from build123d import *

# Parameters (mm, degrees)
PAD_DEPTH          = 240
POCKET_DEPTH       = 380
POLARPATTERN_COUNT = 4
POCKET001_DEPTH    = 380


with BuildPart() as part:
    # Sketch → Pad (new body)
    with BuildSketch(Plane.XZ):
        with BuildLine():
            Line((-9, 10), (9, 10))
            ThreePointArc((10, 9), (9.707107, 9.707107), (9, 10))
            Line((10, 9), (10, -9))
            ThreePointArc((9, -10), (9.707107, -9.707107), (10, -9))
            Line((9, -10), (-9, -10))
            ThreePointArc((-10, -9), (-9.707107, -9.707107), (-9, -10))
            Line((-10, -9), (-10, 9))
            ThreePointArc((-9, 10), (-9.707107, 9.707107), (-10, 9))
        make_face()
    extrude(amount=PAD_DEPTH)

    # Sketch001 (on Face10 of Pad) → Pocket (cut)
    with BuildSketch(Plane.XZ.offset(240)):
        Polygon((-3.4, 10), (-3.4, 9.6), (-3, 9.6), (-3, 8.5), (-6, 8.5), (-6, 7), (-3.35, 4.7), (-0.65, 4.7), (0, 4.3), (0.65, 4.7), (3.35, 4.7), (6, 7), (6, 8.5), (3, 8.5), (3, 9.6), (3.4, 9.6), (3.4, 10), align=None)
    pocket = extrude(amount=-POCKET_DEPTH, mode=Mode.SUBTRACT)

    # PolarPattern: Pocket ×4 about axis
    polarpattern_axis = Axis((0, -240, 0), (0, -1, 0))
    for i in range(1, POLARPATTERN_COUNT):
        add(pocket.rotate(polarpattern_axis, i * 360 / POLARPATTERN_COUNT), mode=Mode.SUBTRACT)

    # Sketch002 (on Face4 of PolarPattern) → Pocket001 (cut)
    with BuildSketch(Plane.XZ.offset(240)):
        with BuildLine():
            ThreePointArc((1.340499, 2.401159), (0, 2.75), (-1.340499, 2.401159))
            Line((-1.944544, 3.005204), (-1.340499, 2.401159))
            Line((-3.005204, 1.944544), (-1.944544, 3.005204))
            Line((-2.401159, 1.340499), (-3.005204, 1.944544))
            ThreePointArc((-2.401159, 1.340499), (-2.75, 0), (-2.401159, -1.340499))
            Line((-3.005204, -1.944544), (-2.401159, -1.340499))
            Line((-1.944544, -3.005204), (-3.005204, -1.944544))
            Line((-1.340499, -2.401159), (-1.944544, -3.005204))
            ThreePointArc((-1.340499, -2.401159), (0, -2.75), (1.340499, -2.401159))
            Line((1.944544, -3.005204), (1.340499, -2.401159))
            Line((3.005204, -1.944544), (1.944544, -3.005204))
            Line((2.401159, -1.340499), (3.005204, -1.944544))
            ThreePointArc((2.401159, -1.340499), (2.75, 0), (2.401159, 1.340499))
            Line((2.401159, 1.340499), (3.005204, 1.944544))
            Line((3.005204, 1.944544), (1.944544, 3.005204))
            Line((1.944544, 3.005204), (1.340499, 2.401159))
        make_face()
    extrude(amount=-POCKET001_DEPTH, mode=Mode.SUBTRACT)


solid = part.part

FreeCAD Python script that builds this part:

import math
import FreeCAD as App
import Part
import Sketcher

V = App.Vector

doc = App.newDocument("Part")
body = doc.addObject("PartDesign::Body", "Body")

# Sketch on XZ plane
sketch1 = body.newObject("Sketcher::SketchObject", "Sketch")
sketch1.AttachmentSupport = (doc.getObject("XZ_Plane"), [""])
sketch1.MapMode = "FlatFace"
sketch1.addGeometry(Part.LineSegment(V(9, 10, 0), V(-9, 10, 0)), False)
sketch1.addGeometry(Part.ArcOfCircle(Part.Circle(V(-9, 9, 0), V(0, 0, 1), 1), math.radians(90), math.radians(180)), False)
sketch1.addGeometry(Part.LineSegment(V(-10, 9, 0), V(-10, -9, 0)), False)
sketch1.addGeometry(Part.ArcOfCircle(Part.Circle(V(-9, -9, 0), V(0, 0, 1), 1), math.radians(180), math.radians(270)), False)
sketch1.addGeometry(Part.LineSegment(V(-9, -10, 0), V(9, -10, 0)), False)
sketch1.addGeometry(Part.ArcOfCircle(Part.Circle(V(9, -9, 0), V(0, 0, 1), 1), math.radians(-90), math.radians(0)), False)
sketch1.addGeometry(Part.LineSegment(V(10, -9, 0), V(10, 9, 0)), False)
sketch1.addGeometry(Part.ArcOfCircle(Part.Circle(V(9, 9, 0), V(0, 0, 1), 1), math.radians(0), math.radians(90)), False)
sketch1.addConstraint(Sketcher.Constraint("Tangent", 0, 2, 1, 1))
sketch1.addConstraint(Sketcher.Constraint("Tangent", 1, 2, 2, 1))
sketch1.addConstraint(Sketcher.Constraint("Tangent", 2, 2, 3, 1))
sketch1.addConstraint(Sketcher.Constraint("Tangent", 3, 2, 4, 1))
sketch1.addConstraint(Sketcher.Constraint("Tangent", 4, 2, 5, 1))
sketch1.addConstraint(Sketcher.Constraint("Tangent", 5, 2, 6, 1))
sketch1.addConstraint(Sketcher.Constraint("Tangent", 6, 2, 7, 1))
sketch1.addConstraint(Sketcher.Constraint("Tangent", 7, 2, 0, 1))
sketch1.addConstraint(Sketcher.Constraint("Horizontal", 0))
sketch1.addConstraint(Sketcher.Constraint("Vertical", 2))
sketch1.addConstraint(Sketcher.Constraint("Horizontal", 4))
sketch1.addConstraint(Sketcher.Constraint("Vertical", 6))
sketch1.addConstraint(Sketcher.Constraint("Equal", 1, 3))
sketch1.addConstraint(Sketcher.Constraint("Equal", 3, 5))
sketch1.addConstraint(Sketcher.Constraint("Equal", 5, 7))
sketch1.addConstraint(Sketcher.Constraint("Symmetric", 1, 3, 5, 3, -1, 1))
sketch1.addConstraint(Sketcher.Constraint("Equal", 4, 2))
sketch1.addConstraint(Sketcher.Constraint("Radius", 1, 0.999999))
sketch1.addConstraint(Sketcher.Constraint("DistanceX", 0, 2, 0, 1, 18.0))
pad1 = body.newObject("PartDesign::Pad", "Pad")
pad1.Profile = sketch1
pad1.Length = 240

# Sketch on XZ plane
sketch2 = body.newObject("Sketcher::SketchObject", "Sketch001")
sketch2.AttachmentSupport = (doc.getObject("XZ_Plane"), [""])
sketch2.MapMode = "FlatFace"
sketch2.AttachmentOffset = App.Placement(V(0, 0, 240), App.Rotation())
sketch2.addGeometry(Part.LineSegment(V(-3.4, 10, 0), V(-3.4, 9.6, 0)), False)
sketch2.addGeometry(Part.LineSegment(V(-3.4, 9.6, 0), V(-3, 9.6, 0)), False)
sketch2.addGeometry(Part.LineSegment(V(-3, 9.6, 0), V(-3, 8.5, 0)), False)
sketch2.addGeometry(Part.LineSegment(V(-3, 8.5, 0), V(-6, 8.5, 0)), False)
sketch2.addGeometry(Part.LineSegment(V(-6, 8.5, 0), V(-6, 7, 0)), False)
sketch2.addGeometry(Part.LineSegment(V(-6, 7, 0), V(-3.35, 4.7, 0)), False)
sketch2.addGeometry(Part.LineSegment(V(-3.35, 4.7, 0), V(-0.65, 4.7, 0)), False)
sketch2.addGeometry(Part.LineSegment(V(-0.65, 4.7, 0), V(0, 4.3, 0)), False)
sketch2.addGeometry(Part.LineSegment(V(0, 4.3, 0), V(0.65, 4.7, 0)), False)
sketch2.addGeometry(Part.LineSegment(V(0.65, 4.7, 0), V(3.35, 4.7, 0)), False)
sketch2.addGeometry(Part.LineSegment(V(3.35, 4.7, 0), V(6, 7, 0)), False)
sketch2.addGeometry(Part.LineSegment(V(6, 7, 0), V(6, 8.5, 0)), False)
sketch2.addGeometry(Part.LineSegment(V(6, 8.5, 0), V(3, 8.5, 0)), False)
sketch2.addGeometry(Part.LineSegment(V(3, 8.5, 0), V(3, 9.6, 0)), False)
sketch2.addGeometry(Part.LineSegment(V(3, 9.6, 0), V(3.4, 9.6, 0)), False)
sketch2.addGeometry(Part.LineSegment(V(3.4, 9.6, 0), V(3.4, 10, 0)), False)
sketch2.addGeometry(Part.LineSegment(V(3.4, 10, 0), V(-3.4, 10, 0)), False)
sketch2.addConstraint(Sketcher.Constraint("Coincident", 0, 2, 1, 1))
sketch2.addConstraint(Sketcher.Constraint("Coincident", 1, 2, 2, 1))
sketch2.addConstraint(Sketcher.Constraint("Coincident", 2, 2, 3, 1))
sketch2.addConstraint(Sketcher.Constraint("Coincident", 3, 2, 4, 1))
sketch2.addConstraint(Sketcher.Constraint("Coincident", 4, 2, 5, 1))
sketch2.addConstraint(Sketcher.Constraint("Coincident", 5, 2, 6, 1))
sketch2.addConstraint(Sketcher.Constraint("Coincident", 6, 2, 7, 1))
sketch2.addConstraint(Sketcher.Constraint("Coincident", 7, 2, 8, 1))
sketch2.addConstraint(Sketcher.Constraint("Coincident", 8, 2, 9, 1))
sketch2.addConstraint(Sketcher.Constraint("Coincident", 9, 2, 10, 1))
sketch2.addConstraint(Sketcher.Constraint("Coincident", 10, 2, 11, 1))
sketch2.addConstraint(Sketcher.Constraint("Coincident", 11, 2, 12, 1))
sketch2.addConstraint(Sketcher.Constraint("Coincident", 12, 2, 13, 1))
sketch2.addConstraint(Sketcher.Constraint("Coincident", 13, 2, 14, 1))
sketch2.addConstraint(Sketcher.Constraint("Coincident", 14, 2, 15, 1))
sketch2.addConstraint(Sketcher.Constraint("Coincident", 15, 2, 16, 1))
sketch2.addConstraint(Sketcher.Constraint("Coincident", 16, 2, 0, 1))
sketch2.addConstraint(Sketcher.Constraint("Vertical", 0))
sketch2.addConstraint(Sketcher.Constraint("Horizontal", 1))
sketch2.addConstraint(Sketcher.Constraint("Vertical", 2))
sketch2.addConstraint(Sketcher.Constraint("Horizontal", 3))
sketch2.addConstraint(Sketcher.Constraint("Vertical", 4))
sketch2.addConstraint(Sketcher.Constraint("Horizontal", 6))
sketch2.addConstraint(Sketcher.Constraint("Horizontal", 9))
sketch2.addConstraint(Sketcher.Constraint("Vertical", 11))
sketch2.addConstraint(Sketcher.Constraint("Horizontal", 12))
sketch2.addConstraint(Sketcher.Constraint("Vertical", 13))
sketch2.addConstraint(Sketcher.Constraint("Horizontal", 14))
sketch2.addConstraint(Sketcher.Constraint("Vertical", 15))
sketch2.addConstraint(Sketcher.Constraint("Horizontal", 16))
sketch2.addConstraint(Sketcher.Constraint("Symmetric", 6, 2, 8, 2, -2))
sketch2.addConstraint(Sketcher.Constraint("Symmetric", 4, 2, 10, 2, -2))
sketch2.addConstraint(Sketcher.Constraint("Symmetric", 2, 2, 12, 2, -2))
sketch2.addConstraint(Sketcher.Constraint("Symmetric", 0, 2, 14, 2, -2))
sketch2.addConstraint(Sketcher.Constraint("PointOnObject", 7, 2, -2))
sketch2.addConstraint(Sketcher.Constraint("Equal", 6, 9))
sketch2.addConstraint(Sketcher.Constraint("Equal", 14, 0))
sketch2.addConstraint(Sketcher.Constraint("DistanceX", 3, 2, 3, 1, 3.0))
sketch2.addConstraint(Sketcher.Constraint("DistanceX", 1, 1, 1, 2, 0.4))
sketch2.addConstraint(Sketcher.Constraint("DistanceX", 6, 1, 6, 2, 2.7))
sketch2.addConstraint(Sketcher.Constraint("DistanceX", 16, 2, 16, 1, 6.8))
sketch2.addConstraint(Sketcher.Constraint("DistanceY", 2, 2, 2, 1, 1.1))
sketch2.addConstraint(Sketcher.Constraint("DistanceY", 4, 2, 4, 1, 1.5))
sketch2.addConstraint(Sketcher.Constraint("DistanceY", -1, 1, 4, 2, 7.0))
sketch2.addConstraint(Sketcher.Constraint("DistanceX", 5, 2, 8, 2, 4.0))
sketch2.addConstraint(Sketcher.Constraint("DistanceY", -1, 1, 5, 2, 4.7))
sketch2.addConstraint(Sketcher.Constraint("DistanceY", -1, 1, 7, 2, 4.3))
pocket1 = body.newObject("PartDesign::Pocket", "Pocket")
pocket1.Profile = sketch2
pocket1.Length = 380
doc.recompute()

polarpattern = body.newObject("PartDesign::PolarPattern", "PolarPattern")
polarpattern.Originals = [pocket1]
polarpattern.Axis = (doc.getObject("Y_Axis"), [""])
polarpattern.Angle = 360
polarpattern.Occurrences = 4
body.Tip = polarpattern

# Sketch on XZ plane
sketch3 = body.newObject("Sketcher::SketchObject", "Sketch002")
sketch3.AttachmentSupport = (doc.getObject("XZ_Plane"), [""])
sketch3.MapMode = "FlatFace"
sketch3.AttachmentOffset = App.Placement(V(0, 0, 240), App.Rotation())
sketch3.addGeometry(Part.ArcOfCircle(Part.Circle(V(0, 0, 0), V(0, 0, 1), 2.8), math.radians(61), math.radians(119)), False)
sketch3.addGeometry(Part.LineSegment(V(-1.3, 2.4, 0), V(-1.9, 3, 0)), False)
sketch3.addGeometry(Part.LineSegment(V(-1.9, 3, 0), V(-3, 1.9, 0)), False)
sketch3.addGeometry(Part.LineSegment(V(-3, 1.9, 0), V(-2.4, 1.3, 0)), False)
sketch3.addGeometry(Part.ArcOfCircle(Part.Circle(V(0, 0, 0), V(0, 0, 1), 2.8), math.radians(151), math.radians(209)), False)
sketch3.addGeometry(Part.LineSegment(V(-2.4, -1.3, 0), V(-3, -1.9, 0)), False)
sketch3.addGeometry(Part.LineSegment(V(-3, -1.9, 0), V(-1.9, -3, 0)), False)
sketch3.addGeometry(Part.LineSegment(V(-1.9, -3, 0), V(-1.3, -2.4, 0)), False)
sketch3.addGeometry(Part.ArcOfCircle(Part.Circle(V(0, 0, 0), V(0, 0, 1), 2.8), math.radians(-119), math.radians(-61)), False)
sketch3.addGeometry(Part.LineSegment(V(1.3, -2.4, 0), V(1.9, -3, 0)), False)
sketch3.addGeometry(Part.LineSegment(V(1.9, -3, 0), V(3, -1.9, 0)), False)
sketch3.addGeometry(Part.LineSegment(V(3, -1.9, 0), V(2.4, -1.3, 0)), False)
sketch3.addGeometry(Part.ArcOfCircle(Part.Circle(V(0, 0, 0), V(0, 0, 1), 2.8), math.radians(-29), math.radians(29)), False)
sketch3.addGeometry(Part.LineSegment(V(2.4, 1.3, 0), V(3, 1.9, 0)), False)
sketch3.addGeometry(Part.LineSegment(V(3, 1.9, 0), V(1.9, 3, 0)), False)
sketch3.addGeometry(Part.LineSegment(V(1.9, 3, 0), V(1.3, 2.4, 0)), False)
sketch3.addConstraint(Sketcher.Constraint("Coincident", 0, 2, 1, 1))
sketch3.addConstraint(Sketcher.Constraint("Coincident", 1, 2, 2, 1))
sketch3.addConstraint(Sketcher.Constraint("Coincident", 2, 2, 3, 1))
sketch3.addConstraint(Sketcher.Constraint("Coincident", 3, 2, 4, 1))
sketch3.addConstraint(Sketcher.Constraint("Coincident", 4, 2, 5, 1))
sketch3.addConstraint(Sketcher.Constraint("Coincident", 5, 2, 6, 1))
sketch3.addConstraint(Sketcher.Constraint("Coincident", 6, 2, 7, 1))
sketch3.addConstraint(Sketcher.Constraint("Coincident", 7, 2, 8, 1))
sketch3.addConstraint(Sketcher.Constraint("Coincident", 8, 2, 9, 1))
sketch3.addConstraint(Sketcher.Constraint("Coincident", 9, 2, 10, 1))
sketch3.addConstraint(Sketcher.Constraint("Coincident", 10, 2, 11, 1))
sketch3.addConstraint(Sketcher.Constraint("Coincident", 11, 2, 12, 1))
sketch3.addConstraint(Sketcher.Constraint("Coincident", 12, 2, 13, 1))
sketch3.addConstraint(Sketcher.Constraint("Coincident", 13, 2, 14, 1))
sketch3.addConstraint(Sketcher.Constraint("Coincident", 14, 2, 15, 1))
sketch3.addConstraint(Sketcher.Constraint("Coincident", 15, 2, 0, 1))
sketch3.addConstraint(Sketcher.Constraint("Coincident", 0, 3, -1, 1))
sketch3.addConstraint(Sketcher.Constraint("Coincident", 4, 3, -1, 1))
sketch3.addConstraint(Sketcher.Constraint("Coincident", 8, 3, -1, 1))
sketch3.addConstraint(Sketcher.Constraint("Coincident", 12, 3, -1, 1))
sketch3.addConstraint(Sketcher.Constraint("Equal", 0, 4))
sketch3.addConstraint(Sketcher.Constraint("Equal", 4, 8))
sketch3.addConstraint(Sketcher.Constraint("Equal", 8, 12))
sketch3.addConstraint(Sketcher.Constraint("Symmetric", 1, 2, 9, 2, -1, 1))
sketch3.addConstraint(Sketcher.Constraint("Symmetric", 2, 2, 10, 2, -1, 1))
sketch3.addConstraint(Sketcher.Constraint("Symmetric", 5, 2, 13, 2, -1, 1))
sketch3.addConstraint(Sketcher.Constraint("Symmetric", 6, 2, 14, 2, -1, 1))
sketch3.addConstraint(Sketcher.Constraint("Symmetric", 6, 2, 9, 2, -2))
sketch3.addConstraint(Sketcher.Constraint("Symmetric", 5, 2, 10, 2, -2))
sketch3.addConstraint(Sketcher.Constraint("Perpendicular", 1, 2))
sketch3.addConstraint(Sketcher.Constraint("Perpendicular", 2, 3))
sketch3.addConstraint(Sketcher.Constraint("Perpendicular", 3, 5))
sketch3.addConstraint(Sketcher.Constraint("Perpendicular", 5, 6))
sketch3.addConstraint(Sketcher.Constraint("Perpendicular", 6, 7))
sketch3.addConstraint(Sketcher.Constraint("Perpendicular", 7, 9))
sketch3.addConstraint(Sketcher.Constraint("Perpendicular", 10, 11))
sketch3.addConstraint(Sketcher.Constraint("Perpendicular", 11, 13))
sketch3.addConstraint(Sketcher.Constraint("Perpendicular", 14, 15))
sketch3.addConstraint(Sketcher.Constraint("Equal", 1, 3))
sketch3.addConstraint(Sketcher.Constraint("Distance", 2, 1.5))
sketch3.addConstraint(Sketcher.Constraint("Radius", 0, 2.750003))
sketch3.addConstraint(Sketcher.Constraint("DistanceY", 8, 3, 1, 2, 3.005201))
pocket2 = body.newObject("PartDesign::Pocket", "Pocket001")
pocket2.Profile = sketch3
pocket2.Length = 380

doc.recompute()
